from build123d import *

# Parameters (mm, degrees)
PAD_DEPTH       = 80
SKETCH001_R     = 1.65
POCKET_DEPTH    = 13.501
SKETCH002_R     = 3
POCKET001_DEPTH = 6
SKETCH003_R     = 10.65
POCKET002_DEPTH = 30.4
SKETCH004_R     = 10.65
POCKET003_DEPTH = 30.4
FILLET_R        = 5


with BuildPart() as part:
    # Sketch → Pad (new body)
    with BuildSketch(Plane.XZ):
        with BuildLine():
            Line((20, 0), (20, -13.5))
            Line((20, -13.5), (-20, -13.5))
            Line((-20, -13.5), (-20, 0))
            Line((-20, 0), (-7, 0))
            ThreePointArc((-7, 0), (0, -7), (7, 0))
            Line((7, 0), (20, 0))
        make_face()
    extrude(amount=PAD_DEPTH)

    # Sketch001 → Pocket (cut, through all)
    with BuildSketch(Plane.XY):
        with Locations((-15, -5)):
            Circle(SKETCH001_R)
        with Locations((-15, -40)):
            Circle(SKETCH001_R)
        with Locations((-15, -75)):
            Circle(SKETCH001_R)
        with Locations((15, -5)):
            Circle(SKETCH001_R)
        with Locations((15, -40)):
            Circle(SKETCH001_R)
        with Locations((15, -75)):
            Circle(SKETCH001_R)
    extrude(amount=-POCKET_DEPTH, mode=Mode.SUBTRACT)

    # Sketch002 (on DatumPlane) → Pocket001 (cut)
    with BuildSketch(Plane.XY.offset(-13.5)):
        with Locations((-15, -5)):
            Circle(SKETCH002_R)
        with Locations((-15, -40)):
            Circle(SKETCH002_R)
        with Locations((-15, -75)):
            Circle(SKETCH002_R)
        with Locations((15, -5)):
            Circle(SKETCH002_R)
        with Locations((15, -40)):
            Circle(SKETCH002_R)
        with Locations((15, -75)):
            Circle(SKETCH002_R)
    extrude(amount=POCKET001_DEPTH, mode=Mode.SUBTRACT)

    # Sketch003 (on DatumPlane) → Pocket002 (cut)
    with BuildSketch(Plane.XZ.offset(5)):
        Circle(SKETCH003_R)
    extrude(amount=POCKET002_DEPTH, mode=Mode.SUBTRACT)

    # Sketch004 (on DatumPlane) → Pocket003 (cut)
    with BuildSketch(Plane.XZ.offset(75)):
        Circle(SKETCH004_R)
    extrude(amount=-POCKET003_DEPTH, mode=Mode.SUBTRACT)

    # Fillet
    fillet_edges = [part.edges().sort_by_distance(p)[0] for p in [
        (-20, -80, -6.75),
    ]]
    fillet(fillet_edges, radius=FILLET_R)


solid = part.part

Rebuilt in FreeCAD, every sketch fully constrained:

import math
import FreeCAD as App
import Part
import Sketcher

V = App.Vector


def edges_at(feature, points):
    """Names of the edges that pass closest to the given points."""
    edges = feature.Shape.Edges
    near = lambda p: min(range(len(edges)), key=lambda i: edges[i].distToShape(Part.Vertex(*p))[0])
    return sorted({f"Edge{near(p) + 1}" for p in points})

doc = App.newDocument("Part")
params = doc.addObject("Spreadsheet::Sheet", "Params")
for row, (alias, value) in enumerate([
    ("sketch1_radius", "7 mm"),
    ("sketch1_width", "13 mm"),
    ("sketch1_height", "13.5 mm"),
    ("pad1_length", "80 mm"),
    ("sketch2_diameter", "3.3 mm"),
    ("sketch3_diameter", "6 mm"),
    ("pocket2_length", "6 mm"),
    ("sketch4_diameter", "21.3 mm"),
    ("pocket3_length", "30.4 mm"),
    ("sketch5_diameter", "21.3 mm"),
    ("pocket4_length", "30.4 mm"),
    ("fillet_radius", "5 mm"),
], start=1):
    params.set(f"A{row}", alias)
    params.set(f"B{row}", "=" + value)
    params.setAlias(f"B{row}", alias)

body = doc.addObject("PartDesign::Body", "Body")

# Sketch on XZ plane
sketch1 = body.newObject("Sketcher::SketchObject", "Sketch")
sketch1.AttachmentSupport = (doc.getObject("XZ_Plane"), [""])
sketch1.MapMode = "FlatFace"
sketch1.addGeometry([
    Part.LineSegment(V(20, -14, 0), V(20, 0, 0)),  # 0
    Part.LineSegment(V(20, 0, 0), V(7, 0, 0)),  # 1
    Part.ArcOfCircle(Part.Circle(V(0, 0, 0), V(0, 0, 1), 7), math.radians(180), math.radians(360)),  # 2
    Part.LineSegment(V(-7, 0, 0), V(-20, 0, 0)),  # 3
    Part.LineSegment(V(-20, 0, 0), V(-20, -14, 0)),  # 4
    Part.LineSegment(V(-20, -14, 0), V(20, -14, 0)),  # 5
], False)
sketch1.addConstraint([
    Sketcher.Constraint("Coincident", 0, 2, 1, 1),
    Sketcher.Constraint("Coincident", 1, 2, 2, 2),
    Sketcher.Constraint("Coincident", 2, 1, 3, 1),
    Sketcher.Constraint("Coincident", 3, 2, 4, 1),
    Sketcher.Constraint("Coincident", 4, 2, 5, 1),
    Sketcher.Constraint("Coincident", 5, 2, 0, 1),
    Sketcher.Constraint("Vertical", 0),
    Sketcher.Constraint("Horizontal", 1),
    Sketcher.Constraint("Horizontal", 3),
    Sketcher.Constraint("Vertical", 4),
    Sketcher.Constraint("Horizontal", 5),
    Sketcher.Constraint("Coincident", 2, 3, -1, 1),
    Sketcher.Constraint("Symmetric", 0, 2, 3, 2, -1, 1),
    Sketcher.Constraint("PointOnObject", 0, 2, -1),
    Sketcher.Constraint("Radius", 2, 7.0),
    Sketcher.Constraint("DistanceX", 1, 2, 1, 1, 13.0),
    Sketcher.Constraint("DistanceY", 0, 1, 0, 2, 13.5),
])
sketch1.setExpression("Constraints[14]", "Params.sketch1_radius")
sketch1.setExpression("Constraints[15]", "Params.sketch1_width")
sketch1.setExpression("Constraints[16]", "Params.sketch1_height")
pad1 = body.newObject("PartDesign::Pad", "Pad")
pad1.Profile = sketch1
pad1.setExpression("Length", "Params.pad1_length")

# Sketch on XY plane
sketch2 = body.newObject("Sketcher::SketchObject", "Sketch001")
sketch2.AttachmentSupport = (doc.getObject("XY_Plane"), [""])
sketch2.MapMode = "FlatFace"
sketch2.addGeometry([
    Part.Circle(V(-15, -5, 0), V(0, 0, 1), 1.6),  # 0
    Part.Circle(V(-15, -40, 0), V(0, 0, 1), 1.6),  # 1
    Part.Circle(V(-15, -75, 0), V(0, 0, 1), 1.6),  # 2
    Part.Circle(V(15, -5, 0), V(0, 0, 1), 1.6),  # 3
    Part.Circle(V(15, -40, 0), V(0, 0, 1), 1.6),  # 4
    Part.Circle(V(15, -75, 0), V(0, 0, 1), 1.6),  # 5
], False)
sketch2.addConstraint([
    Sketcher.Constraint("Equal", 0, 1),
    Sketcher.Constraint("Equal", 1, 2),
    Sketcher.Constraint("Equal", 2, 3),
    Sketcher.Constraint("Equal", 3, 4),
    Sketcher.Constraint("Equal", 4, 5),
    Sketcher.Constraint("Symmetric", 0, 3, 3, 3, -2),
    Sketcher.Constraint("Symmetric", 1, 3, 4, 3, -2),
    Sketcher.Constraint("Symmetric", 2, 3, 5, 3, -2),
    Sketcher.Constraint("Vertical", 0, 3, 1, 3),
    Sketcher.Constraint("Vertical", 1, 3, 2, 3),
    Sketcher.Constraint("Diameter", 0, 3.3),
    Sketcher.Constraint("DistanceX", 0, 3, -1, 1, 15.0),
    Sketcher.Constraint("DistanceY", 0, 3, -1, 1, 5.0),
    Sketcher.Constraint("DistanceY", 1, 3, -1, 1, 40.0),
    Sketcher.Constraint("DistanceY", 2, 3, -1, 1, 75.0),
])
sketch2.setExpression("Constraints[10]", "Params.sketch2_diameter")
pocket1 = body.newObject("PartDesign::Pocket", "Pocket")
pocket1.Profile = sketch2
pocket1.Type = "ThroughAll"

# Sketch on XY plane
sketch3 = body.newObject("Sketcher::SketchObject", "Sketch002")
sketch3.AttachmentSupport = (doc.getObject("XY_Plane"), [""])
sketch3.MapMode = "FlatFace"
sketch3.AttachmentOffset = App.Placement(V(0, 0, -13.5), App.Rotation())
sketch3.addGeometry([
    Part.Circle(V(-15, -5, 0), V(0, 0, 1), 3),  # 0
    Part.Circle(V(-15, -40, 0), V(0, 0, 1), 3),  # 1
    Part.Circle(V(-15, -75, 0), V(0, 0, 1), 3),  # 2
    Part.Circle(V(15, -5, 0), V(0, 0, 1), 3),  # 3
    Part.Circle(V(15, -40, 0), V(0, 0, 1), 3),  # 4
    Part.Circle(V(15, -75, 0), V(0, 0, 1), 3),  # 5
], False)
sketch3.addConstraint([
    Sketcher.Constraint("Equal", 0, 1),
    Sketcher.Constraint("Equal", 1, 2),
    Sketcher.Constraint("Equal", 2, 3),
    Sketcher.Constraint("Equal", 3, 4),
    Sketcher.Constraint("Equal", 4, 5),
    Sketcher.Constraint("Symmetric", 0, 3, 3, 3, -2),
    Sketcher.Constraint("Symmetric", 1, 3, 4, 3, -2),
    Sketcher.Constraint("Symmetric", 2, 3, 5, 3, -2),
    Sketcher.Constraint("Vertical", 0, 3, 1, 3),
    Sketcher.Constraint("Vertical", 1, 3, 2, 3),
    Sketcher.Constraint("Diameter", 0, 6.0),
    Sketcher.Constraint("DistanceX", 0, 3, -1, 1, 15.0),
    Sketcher.Constraint("DistanceY", 0, 3, -1, 1, 5.0),
    Sketcher.Constraint("DistanceY", 1, 3, -1, 1, 40.0),
    Sketcher.Constraint("DistanceY", 2, 3, -1, 1, 75.0),
])
sketch3.setExpression("Constraints[10]", "Params.sketch3_diameter")
pocket2 = body.newObject("PartDesign::Pocket", "Pocket001")
pocket2.Profile = sketch3
pocket2.setExpression("Length", "Params.pocket2_length")
pocket2.Reversed = True

# Sketch on XZ plane
sketch4 = body.newObject("Sketcher::SketchObject", "Sketch003")
sketch4.AttachmentSupport = (doc.getObject("XZ_Plane"), [""])
sketch4.MapMode = "FlatFace"
sketch4.AttachmentOffset = App.Placement(V(0, 0, 5), App.Rotation())
sketch4.addGeometry(Part.Circle(V(0, 0, 0), V(0, 0, 1), 11), False)
sketch4.addConstraint([
    Sketcher.Constraint("Coincident", 0, 3, -1, 1),
    Sketcher.Constraint("Diameter", 0, 21.3),
])
sketch4.setExpression("Constraints[1]", "Params.sketch4_diameter")
pocket3 = body.newObject("PartDesign::Pocket", "Pocket002")
pocket3.Profile = sketch4
pocket3.setExpression("Length", "Params.pocket3_length")
pocket3.Reversed = True

# Sketch on XZ plane
sketch5 = body.newObject("Sketcher::SketchObject", "Sketch004")
sketch5.AttachmentSupport = (doc.getObject("XZ_Plane"), [""])
sketch5.MapMode = "FlatFace"
sketch5.AttachmentOffset = App.Placement(V(0, 0, 75), App.Rotation())
sketch5.addGeometry(Part.Circle(V(0, 0, 0), V(0, 0, 1), 11), False)
sketch5.addConstraint([
    Sketcher.Constraint("Coincident", 0, 3, -1, 1),
    Sketcher.Constraint("Diameter", 0, 21.3),
])
sketch5.setExpression("Constraints[1]", "Params.sketch5_diameter")
pocket4 = body.newObject("PartDesign::Pocket", "Pocket003")
pocket4.Profile = sketch5
pocket4.setExpression("Length", "Params.pocket4_length")
doc.recompute()

fillet = body.newObject("PartDesign::Fillet", "Fillet")
fillet.Base = (pocket4, edges_at(pocket4, [(-20, -80, -6.75)]))
fillet.setExpression("Radius", "Params.fillet_radius")

doc.recompute()
